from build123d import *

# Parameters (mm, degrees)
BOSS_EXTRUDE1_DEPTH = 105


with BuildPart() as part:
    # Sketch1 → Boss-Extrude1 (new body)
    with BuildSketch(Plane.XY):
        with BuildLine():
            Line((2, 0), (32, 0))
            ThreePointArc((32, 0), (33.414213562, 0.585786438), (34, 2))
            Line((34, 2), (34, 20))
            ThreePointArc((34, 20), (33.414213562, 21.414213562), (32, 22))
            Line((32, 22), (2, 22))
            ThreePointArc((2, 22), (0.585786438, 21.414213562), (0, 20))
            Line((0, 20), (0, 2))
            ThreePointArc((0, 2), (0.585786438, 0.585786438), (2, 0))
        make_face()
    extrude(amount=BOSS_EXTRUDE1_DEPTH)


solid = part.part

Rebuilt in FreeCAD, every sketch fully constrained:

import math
import FreeCAD as App
import Part
import Sketcher

V = App.Vector
Q = App.Units.Quantity

doc = App.newDocument("Part")
params = doc.addObject("Spreadsheet::Sheet", "Params")
for row, (alias, value) in enumerate([
    ("sketch1_radius", "2 mm"),
    ("sketch1_width", "30 mm"),
    ("sketch1_height", "18 mm"),
    ("pad1_length", "105 mm"),
], start=1):
    params.set(f"A{row}", alias)
    params.set(f"B{row}", "=" + value)
    params.setAlias(f"B{row}", alias)

body = doc.addObject("PartDesign::Body", "Body")

# Sketch on XY plane
sketch1 = body.newObject("Sketcher::SketchObject", "Sketch")
sketch1.AttachmentSupport = (doc.getObject("XY_Plane"), [""])
sketch1.MapMode = "FlatFace"
sketch1.addGeometry(Part.LineSegment(V(2, 0, 0), V(32, 0, 0)), False)
sketch1.addGeometry(Part.ArcOfCircle(Part.Circle(V(32, 2, 0), V(0, 0, 1), 2), math.radians(-90), math.radians(0)), False)
sketch1.addGeometry(Part.LineSegment(V(34, 2, 0), V(34, 20, 0)), False)
sketch1.addGeometry(Part.ArcOfCircle(Part.Circle(V(32, 20, 0), V(0, 0, 1), 2), math.radians(0), math.radians(90)), False)
sketch1.addGeometry(Part.LineSegment(V(32, 22, 0), V(2, 22, 0)), False)
sketch1.addGeometry(Part.ArcOfCircle(Part.Circle(V(2, 20, 0), V(0, 0, 1), 2), math.radians(90), math.radians(180)), False)
sketch1.addGeometry(Part.LineSegment(V(0, 20, 0), V(0, 2, 0)), False)
sketch1.addGeometry(Part.ArcOfCircle(Part.Circle(V(2, 2, 0), V(0, 0, 1), 2), math.radians(-180), math.radians(-90)), False)
sketch1.addConstraint(Sketcher.Constraint("Tangent", 0, 2, 1, 1))
sketch1.addConstraint(Sketcher.Constraint("Tangent", 1, 2, 2, 1))
sketch1.addConstraint(Sketcher.Constraint("Tangent", 2, 2, 3, 1))
sketch1.addConstraint(Sketcher.Constraint("Tangent", 3, 2, 4, 1))
sketch1.addConstraint(Sketcher.Constraint("Tangent", 4, 2, 5, 1))
sketch1.addConstraint(Sketcher.Constraint("Tangent", 5, 2, 6, 1))
sketch1.addConstraint(Sketcher.Constraint("Tangent", 6, 2, 7, 1))
sketch1.addConstraint(Sketcher.Constraint("Tangent", 7, 2, 0, 1))
sketch1.addConstraint(Sketcher.Constraint("Horizontal", 0))
sketch1.addConstraint(Sketcher.Constraint("Vertical", 2))
sketch1.addConstraint(Sketcher.Constraint("Horizontal", 4))
sketch1.addConstraint(Sketcher.Constraint("Vertical", 6))
sketch1.addConstraint(Sketcher.Constraint("Equal", 1, 3))
sketch1.addConstraint(Sketcher.Constraint("Equal", 3, 5))
sketch1.addConstraint(Sketcher.Constraint("Equal", 5, 7))
sketch1.addConstraint(Sketcher.Constraint("PointOnObject", 0, 2, -1))
sketch1.addConstraint(Sketcher.Constraint("PointOnObject", 5, 2, -2))
sketch1.addConstraint(Sketcher.Constraint("Radius", 1, Q("2 mm")))
sketch1.addConstraint(Sketcher.Constraint("DistanceX", 0, 1, 0, 2, Q("30 mm")))
sketch1.addConstraint(Sketcher.Constraint("DistanceY", 2, 1, 2, 2, Q("18 mm")))
sketch1.setExpression("Constraints[17]", "Params.sketch1_radius")
sketch1.setExpression("Constraints[18]", "Params.sketch1_width")
sketch1.setExpression("Constraints[19]", "Params.sketch1_height")
pad1 = body.newObject("PartDesign::Pad", "Pad")
pad1.Profile = sketch1
pad1.setExpression("Length", "Params.pad1_length")

doc.recompute()
